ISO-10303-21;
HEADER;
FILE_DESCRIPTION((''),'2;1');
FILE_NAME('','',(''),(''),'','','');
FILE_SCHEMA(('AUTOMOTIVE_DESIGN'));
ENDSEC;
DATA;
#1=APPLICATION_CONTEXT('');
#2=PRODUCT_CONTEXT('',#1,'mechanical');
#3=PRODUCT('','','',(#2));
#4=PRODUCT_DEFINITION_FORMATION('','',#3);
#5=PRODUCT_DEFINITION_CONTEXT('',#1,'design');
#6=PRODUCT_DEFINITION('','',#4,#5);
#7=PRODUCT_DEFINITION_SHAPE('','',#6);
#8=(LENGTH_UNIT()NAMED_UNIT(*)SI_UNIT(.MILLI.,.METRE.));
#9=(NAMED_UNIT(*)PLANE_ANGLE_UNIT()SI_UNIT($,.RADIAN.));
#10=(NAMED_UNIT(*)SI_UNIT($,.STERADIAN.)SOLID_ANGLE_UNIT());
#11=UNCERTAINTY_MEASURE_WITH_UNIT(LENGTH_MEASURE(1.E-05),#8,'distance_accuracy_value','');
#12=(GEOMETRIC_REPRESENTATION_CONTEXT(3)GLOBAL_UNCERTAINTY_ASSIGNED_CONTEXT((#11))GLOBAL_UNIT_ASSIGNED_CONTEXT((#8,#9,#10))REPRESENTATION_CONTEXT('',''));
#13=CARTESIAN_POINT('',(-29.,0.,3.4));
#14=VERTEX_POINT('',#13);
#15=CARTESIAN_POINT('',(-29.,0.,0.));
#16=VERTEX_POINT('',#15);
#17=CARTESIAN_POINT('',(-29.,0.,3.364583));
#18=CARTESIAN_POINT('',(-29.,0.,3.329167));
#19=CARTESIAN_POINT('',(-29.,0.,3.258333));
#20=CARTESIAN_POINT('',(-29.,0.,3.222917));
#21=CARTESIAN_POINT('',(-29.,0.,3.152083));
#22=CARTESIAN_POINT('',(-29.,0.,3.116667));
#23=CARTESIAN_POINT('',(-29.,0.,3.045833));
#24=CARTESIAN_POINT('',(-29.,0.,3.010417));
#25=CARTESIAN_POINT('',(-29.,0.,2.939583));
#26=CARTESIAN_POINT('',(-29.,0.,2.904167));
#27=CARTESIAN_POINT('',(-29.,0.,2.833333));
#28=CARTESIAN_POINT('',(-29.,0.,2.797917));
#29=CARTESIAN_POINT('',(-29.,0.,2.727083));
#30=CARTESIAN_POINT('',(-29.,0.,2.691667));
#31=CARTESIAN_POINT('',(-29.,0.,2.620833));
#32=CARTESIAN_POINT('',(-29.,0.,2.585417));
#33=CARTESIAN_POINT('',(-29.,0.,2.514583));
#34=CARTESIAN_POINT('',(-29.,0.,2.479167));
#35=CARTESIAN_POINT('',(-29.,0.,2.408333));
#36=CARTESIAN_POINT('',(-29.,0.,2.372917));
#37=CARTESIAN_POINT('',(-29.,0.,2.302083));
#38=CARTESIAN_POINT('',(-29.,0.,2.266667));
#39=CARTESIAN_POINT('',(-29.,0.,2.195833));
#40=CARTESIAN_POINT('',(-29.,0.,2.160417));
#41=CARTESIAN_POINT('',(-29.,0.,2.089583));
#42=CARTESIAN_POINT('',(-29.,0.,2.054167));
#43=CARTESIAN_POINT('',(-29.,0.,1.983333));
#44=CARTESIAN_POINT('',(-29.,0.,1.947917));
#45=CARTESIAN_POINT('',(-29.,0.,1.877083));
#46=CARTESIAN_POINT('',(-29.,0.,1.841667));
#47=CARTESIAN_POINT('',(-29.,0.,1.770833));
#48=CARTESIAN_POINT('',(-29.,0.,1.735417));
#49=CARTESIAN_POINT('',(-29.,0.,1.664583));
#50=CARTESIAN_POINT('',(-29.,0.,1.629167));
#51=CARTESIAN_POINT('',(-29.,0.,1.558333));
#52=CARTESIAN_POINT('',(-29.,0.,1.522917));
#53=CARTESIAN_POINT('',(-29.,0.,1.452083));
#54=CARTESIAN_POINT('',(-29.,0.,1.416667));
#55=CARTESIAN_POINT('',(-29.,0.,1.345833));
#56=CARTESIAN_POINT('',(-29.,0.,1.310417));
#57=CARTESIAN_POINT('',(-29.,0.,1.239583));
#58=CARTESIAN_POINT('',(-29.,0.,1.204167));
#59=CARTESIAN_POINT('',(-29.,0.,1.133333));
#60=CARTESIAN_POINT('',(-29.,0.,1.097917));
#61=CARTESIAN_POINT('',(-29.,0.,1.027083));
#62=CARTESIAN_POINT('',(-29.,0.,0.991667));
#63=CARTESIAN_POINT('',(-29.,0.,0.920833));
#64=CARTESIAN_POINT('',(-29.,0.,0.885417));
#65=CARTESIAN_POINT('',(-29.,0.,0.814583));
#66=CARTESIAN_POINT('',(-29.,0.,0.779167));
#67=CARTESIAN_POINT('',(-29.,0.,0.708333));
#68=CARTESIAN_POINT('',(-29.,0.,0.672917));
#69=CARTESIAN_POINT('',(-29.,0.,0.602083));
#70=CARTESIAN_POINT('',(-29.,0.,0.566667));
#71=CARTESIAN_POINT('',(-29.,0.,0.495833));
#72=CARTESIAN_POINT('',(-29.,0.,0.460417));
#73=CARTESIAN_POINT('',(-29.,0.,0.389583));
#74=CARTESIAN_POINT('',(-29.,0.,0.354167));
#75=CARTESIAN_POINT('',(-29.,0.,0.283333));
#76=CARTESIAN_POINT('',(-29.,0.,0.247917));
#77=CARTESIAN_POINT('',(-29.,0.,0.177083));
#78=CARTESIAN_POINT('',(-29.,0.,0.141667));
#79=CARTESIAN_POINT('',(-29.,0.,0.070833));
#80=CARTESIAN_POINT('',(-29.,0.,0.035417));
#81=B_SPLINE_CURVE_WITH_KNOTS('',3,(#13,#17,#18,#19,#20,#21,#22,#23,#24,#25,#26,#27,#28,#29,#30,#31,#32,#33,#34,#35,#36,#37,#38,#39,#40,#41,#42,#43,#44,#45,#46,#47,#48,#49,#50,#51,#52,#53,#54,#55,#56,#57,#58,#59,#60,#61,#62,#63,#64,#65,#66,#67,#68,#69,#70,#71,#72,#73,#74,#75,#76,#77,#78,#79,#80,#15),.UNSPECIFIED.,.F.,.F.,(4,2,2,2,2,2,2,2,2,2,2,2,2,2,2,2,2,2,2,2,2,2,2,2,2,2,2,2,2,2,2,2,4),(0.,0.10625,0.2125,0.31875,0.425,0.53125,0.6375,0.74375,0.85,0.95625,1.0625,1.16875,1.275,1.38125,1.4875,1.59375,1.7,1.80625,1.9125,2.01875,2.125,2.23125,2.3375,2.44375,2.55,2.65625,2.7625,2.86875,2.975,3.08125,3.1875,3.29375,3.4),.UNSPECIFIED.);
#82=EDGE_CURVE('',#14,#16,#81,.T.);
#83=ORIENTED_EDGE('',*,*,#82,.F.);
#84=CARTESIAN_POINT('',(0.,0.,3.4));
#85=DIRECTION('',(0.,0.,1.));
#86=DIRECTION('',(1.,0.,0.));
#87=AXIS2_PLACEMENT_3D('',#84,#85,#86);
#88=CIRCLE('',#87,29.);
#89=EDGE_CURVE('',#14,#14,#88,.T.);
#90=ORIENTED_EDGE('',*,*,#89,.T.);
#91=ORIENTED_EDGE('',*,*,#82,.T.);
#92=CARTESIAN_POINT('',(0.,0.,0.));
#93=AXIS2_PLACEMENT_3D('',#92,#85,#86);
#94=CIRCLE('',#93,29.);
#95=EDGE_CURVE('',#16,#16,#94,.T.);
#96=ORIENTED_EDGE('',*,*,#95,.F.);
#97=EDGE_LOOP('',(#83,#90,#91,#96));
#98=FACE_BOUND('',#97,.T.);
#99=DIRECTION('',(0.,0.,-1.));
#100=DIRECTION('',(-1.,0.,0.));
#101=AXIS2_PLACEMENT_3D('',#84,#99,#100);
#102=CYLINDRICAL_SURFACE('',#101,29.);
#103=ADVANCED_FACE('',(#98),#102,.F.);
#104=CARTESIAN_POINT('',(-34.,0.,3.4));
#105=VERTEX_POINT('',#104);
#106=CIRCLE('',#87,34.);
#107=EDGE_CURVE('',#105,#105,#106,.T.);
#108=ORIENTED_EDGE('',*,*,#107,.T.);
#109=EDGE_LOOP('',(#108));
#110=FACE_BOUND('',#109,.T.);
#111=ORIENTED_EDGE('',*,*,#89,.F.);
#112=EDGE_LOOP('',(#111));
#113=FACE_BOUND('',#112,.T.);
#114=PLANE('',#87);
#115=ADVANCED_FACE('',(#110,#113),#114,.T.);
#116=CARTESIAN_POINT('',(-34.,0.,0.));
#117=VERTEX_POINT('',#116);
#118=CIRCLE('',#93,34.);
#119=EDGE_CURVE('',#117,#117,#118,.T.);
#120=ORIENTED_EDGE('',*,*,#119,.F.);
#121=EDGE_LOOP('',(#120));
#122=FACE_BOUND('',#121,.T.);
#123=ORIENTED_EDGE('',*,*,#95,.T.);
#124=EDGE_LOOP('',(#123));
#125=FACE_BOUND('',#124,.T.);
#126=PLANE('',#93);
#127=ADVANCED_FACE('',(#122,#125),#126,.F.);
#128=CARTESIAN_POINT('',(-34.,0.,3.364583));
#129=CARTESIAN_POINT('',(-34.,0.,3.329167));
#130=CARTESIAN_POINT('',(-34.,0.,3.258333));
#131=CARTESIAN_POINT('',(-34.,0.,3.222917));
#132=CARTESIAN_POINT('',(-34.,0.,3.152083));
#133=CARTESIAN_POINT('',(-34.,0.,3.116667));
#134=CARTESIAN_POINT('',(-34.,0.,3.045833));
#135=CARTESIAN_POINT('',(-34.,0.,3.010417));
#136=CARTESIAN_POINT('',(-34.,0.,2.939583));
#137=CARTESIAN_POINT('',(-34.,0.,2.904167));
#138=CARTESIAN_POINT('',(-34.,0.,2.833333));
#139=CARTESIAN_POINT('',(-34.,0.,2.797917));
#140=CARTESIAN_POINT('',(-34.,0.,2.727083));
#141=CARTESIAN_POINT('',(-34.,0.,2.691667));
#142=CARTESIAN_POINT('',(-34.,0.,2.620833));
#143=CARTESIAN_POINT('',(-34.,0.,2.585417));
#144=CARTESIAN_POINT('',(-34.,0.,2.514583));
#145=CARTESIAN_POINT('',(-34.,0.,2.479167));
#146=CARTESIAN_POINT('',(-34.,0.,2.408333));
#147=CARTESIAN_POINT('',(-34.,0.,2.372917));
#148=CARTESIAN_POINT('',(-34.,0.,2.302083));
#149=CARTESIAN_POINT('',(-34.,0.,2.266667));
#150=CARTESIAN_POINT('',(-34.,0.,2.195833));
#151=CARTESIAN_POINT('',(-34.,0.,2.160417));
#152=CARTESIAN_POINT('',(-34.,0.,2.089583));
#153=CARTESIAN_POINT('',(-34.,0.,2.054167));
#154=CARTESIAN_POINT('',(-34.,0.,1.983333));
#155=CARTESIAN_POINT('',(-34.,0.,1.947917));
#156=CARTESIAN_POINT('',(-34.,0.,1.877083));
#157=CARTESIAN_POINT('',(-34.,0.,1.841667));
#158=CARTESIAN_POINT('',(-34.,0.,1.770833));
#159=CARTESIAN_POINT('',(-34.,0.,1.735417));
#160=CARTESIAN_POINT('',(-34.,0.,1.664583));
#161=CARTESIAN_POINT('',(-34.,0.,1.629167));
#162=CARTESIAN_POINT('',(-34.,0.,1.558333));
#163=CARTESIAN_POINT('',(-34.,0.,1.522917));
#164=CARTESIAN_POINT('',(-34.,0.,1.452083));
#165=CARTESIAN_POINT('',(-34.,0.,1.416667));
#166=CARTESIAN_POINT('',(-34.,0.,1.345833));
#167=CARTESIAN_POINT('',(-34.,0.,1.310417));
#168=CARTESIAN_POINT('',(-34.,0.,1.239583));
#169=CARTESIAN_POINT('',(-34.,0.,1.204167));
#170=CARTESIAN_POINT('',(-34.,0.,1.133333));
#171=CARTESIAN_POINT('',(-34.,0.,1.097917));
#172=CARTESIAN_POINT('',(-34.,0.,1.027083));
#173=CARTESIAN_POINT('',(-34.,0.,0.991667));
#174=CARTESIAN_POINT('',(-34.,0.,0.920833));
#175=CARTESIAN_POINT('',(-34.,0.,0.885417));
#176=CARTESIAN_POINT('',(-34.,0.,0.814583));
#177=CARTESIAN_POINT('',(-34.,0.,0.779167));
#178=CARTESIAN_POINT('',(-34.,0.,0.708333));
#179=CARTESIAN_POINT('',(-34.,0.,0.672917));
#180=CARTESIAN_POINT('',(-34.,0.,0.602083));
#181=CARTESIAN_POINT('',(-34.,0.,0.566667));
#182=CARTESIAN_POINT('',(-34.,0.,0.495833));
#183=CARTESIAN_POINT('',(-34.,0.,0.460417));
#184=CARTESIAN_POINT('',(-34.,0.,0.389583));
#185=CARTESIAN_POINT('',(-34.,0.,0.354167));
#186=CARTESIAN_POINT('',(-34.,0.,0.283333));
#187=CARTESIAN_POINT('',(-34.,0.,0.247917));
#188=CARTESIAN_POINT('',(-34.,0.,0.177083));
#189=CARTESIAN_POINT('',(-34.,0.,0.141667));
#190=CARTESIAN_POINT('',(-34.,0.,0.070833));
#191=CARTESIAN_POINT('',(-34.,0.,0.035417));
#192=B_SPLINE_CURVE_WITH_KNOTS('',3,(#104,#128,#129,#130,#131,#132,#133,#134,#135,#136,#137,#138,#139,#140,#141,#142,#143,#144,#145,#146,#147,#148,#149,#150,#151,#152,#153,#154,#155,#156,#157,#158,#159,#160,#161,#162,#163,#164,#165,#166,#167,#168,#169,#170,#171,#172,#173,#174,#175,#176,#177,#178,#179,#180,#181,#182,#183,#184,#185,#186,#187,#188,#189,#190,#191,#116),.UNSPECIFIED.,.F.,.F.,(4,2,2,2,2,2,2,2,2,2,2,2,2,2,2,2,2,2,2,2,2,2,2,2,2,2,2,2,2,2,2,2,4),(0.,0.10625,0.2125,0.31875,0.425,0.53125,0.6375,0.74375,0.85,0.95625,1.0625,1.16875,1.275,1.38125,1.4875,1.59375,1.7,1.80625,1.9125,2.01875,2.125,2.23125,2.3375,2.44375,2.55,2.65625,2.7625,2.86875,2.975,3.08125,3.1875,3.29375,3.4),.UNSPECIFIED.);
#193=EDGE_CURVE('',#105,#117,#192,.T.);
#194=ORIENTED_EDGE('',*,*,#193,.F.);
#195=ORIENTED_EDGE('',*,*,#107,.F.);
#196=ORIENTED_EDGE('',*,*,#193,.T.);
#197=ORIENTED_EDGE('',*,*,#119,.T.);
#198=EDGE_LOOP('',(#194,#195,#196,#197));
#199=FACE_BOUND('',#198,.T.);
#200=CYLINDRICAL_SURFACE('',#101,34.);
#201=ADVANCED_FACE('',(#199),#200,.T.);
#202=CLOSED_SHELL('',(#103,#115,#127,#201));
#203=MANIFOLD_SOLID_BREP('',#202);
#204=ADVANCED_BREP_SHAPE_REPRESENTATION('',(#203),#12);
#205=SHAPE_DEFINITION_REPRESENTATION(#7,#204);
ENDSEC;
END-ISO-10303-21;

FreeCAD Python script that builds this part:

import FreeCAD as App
import Part
import Sketcher

V = App.Vector

doc = App.newDocument("Part")
params = doc.addObject("Spreadsheet::Sheet", "Params")
for row, (alias, value) in enumerate([
    ("sketch1_diameter", "68 mm"),
    ("sketch1_diameter2", "58 mm"),
    ("pad1_length", "3.4 mm"),
], start=1):
    params.set(f"A{row}", alias)
    params.set(f"B{row}", "=" + value)
    params.setAlias(f"B{row}", alias)

body = doc.addObject("PartDesign::Body", "Body")

sketch1 = body.newObject("Sketcher::SketchObject", "Sketch")
sketch1.AttachmentSupport = (doc.getObject("XY_Plane"), [""])
sketch1.MapMode = "FlatFace"
sketch1.addGeometry(Part.Circle(V(0, 0, 0), V(0, 0, 1), 34), False)
sketch1.addGeometry(Part.Circle(V(0, 0, 0), V(0, 0, 1), 29), False)
sketch1.addConstraint(Sketcher.Constraint("Coincident", 0, 3, -1, 1))
sketch1.addConstraint(Sketcher.Constraint("Coincident", 1, 3, -1, 1))
sketch1.addConstraint(Sketcher.Constraint("Diameter", 0, 68.0))
sketch1.addConstraint(Sketcher.Constraint("Diameter", 1, 58.0))
sketch1.setExpression("Constraints[2]", "Params.sketch1_diameter")
sketch1.setExpression("Constraints[3]", "Params.sketch1_diameter2")
pad1 = body.newObject("PartDesign::Pad", "Pad")
pad1.Profile = sketch1
pad1.setExpression("Length", "Params.pad1_length")

doc.recompute()
